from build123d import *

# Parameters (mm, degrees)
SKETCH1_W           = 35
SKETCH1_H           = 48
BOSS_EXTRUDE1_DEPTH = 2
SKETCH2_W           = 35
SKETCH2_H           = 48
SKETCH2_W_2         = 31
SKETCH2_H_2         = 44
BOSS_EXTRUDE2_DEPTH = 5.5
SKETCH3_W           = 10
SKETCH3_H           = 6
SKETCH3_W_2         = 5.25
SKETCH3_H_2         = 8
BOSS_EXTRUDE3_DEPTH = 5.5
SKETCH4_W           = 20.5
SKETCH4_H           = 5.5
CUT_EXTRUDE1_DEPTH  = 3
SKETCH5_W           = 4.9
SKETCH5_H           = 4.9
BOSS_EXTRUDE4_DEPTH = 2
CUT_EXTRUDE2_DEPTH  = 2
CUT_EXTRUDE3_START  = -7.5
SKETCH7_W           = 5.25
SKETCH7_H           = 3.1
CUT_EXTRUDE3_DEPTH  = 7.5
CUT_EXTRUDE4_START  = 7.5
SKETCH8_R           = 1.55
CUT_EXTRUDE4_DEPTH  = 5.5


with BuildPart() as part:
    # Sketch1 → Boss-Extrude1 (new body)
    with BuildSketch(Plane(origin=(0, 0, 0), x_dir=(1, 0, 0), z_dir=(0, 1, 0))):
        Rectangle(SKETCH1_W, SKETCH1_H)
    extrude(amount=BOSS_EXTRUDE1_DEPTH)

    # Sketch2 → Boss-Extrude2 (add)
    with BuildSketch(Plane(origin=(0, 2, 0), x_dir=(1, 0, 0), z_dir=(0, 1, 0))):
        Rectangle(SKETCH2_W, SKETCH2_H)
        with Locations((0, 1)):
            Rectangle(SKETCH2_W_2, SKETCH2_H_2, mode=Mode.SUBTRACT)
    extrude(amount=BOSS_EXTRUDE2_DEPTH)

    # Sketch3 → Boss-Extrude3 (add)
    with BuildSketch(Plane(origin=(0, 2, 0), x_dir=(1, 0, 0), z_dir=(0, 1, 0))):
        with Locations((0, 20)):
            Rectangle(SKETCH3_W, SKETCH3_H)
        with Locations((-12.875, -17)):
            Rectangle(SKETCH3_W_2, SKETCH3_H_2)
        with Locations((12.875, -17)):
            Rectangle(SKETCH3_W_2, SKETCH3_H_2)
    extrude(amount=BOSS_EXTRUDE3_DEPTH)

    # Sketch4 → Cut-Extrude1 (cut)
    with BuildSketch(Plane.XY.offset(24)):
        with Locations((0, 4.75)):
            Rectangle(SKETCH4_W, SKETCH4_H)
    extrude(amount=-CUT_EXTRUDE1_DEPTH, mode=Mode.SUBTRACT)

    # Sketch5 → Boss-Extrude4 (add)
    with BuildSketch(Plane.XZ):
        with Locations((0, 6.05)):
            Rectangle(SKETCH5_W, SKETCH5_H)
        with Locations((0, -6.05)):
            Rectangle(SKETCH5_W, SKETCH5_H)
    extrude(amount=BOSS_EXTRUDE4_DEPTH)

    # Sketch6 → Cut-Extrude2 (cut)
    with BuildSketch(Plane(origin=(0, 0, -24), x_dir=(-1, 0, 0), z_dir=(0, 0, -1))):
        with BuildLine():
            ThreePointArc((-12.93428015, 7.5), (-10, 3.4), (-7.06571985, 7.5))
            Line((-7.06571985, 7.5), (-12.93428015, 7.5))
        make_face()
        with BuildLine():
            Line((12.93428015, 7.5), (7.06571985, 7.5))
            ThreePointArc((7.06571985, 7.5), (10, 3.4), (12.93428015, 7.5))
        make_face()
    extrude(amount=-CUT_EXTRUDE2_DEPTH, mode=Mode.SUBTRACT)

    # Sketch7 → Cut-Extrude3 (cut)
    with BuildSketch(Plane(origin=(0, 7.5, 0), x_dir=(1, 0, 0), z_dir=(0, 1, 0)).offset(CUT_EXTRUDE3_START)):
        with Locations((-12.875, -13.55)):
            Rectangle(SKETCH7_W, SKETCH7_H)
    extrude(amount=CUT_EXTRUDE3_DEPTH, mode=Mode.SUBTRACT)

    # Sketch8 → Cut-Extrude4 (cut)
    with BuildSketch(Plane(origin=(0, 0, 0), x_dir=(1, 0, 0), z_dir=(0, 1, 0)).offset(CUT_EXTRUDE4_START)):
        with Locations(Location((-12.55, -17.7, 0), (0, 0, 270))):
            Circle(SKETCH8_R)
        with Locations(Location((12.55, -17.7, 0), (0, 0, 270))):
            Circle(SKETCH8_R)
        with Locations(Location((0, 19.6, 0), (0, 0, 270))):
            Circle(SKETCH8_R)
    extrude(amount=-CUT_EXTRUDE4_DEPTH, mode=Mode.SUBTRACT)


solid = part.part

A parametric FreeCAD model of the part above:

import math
import FreeCAD as App
import Part
import Sketcher
from FreeCAD import Vector
Q = App.Units.Quantity


def add_polygon(sketch, points):
    """Adds a closed chain of lines whose ends are joined by coincident constraints."""
    first, n = sketch.GeometryCount, len(points)
    for a, b in zip(points, points[1:] + points[:1]):
        sketch.addGeometry(Part.LineSegment(App.Vector(*a, 0), App.Vector(*b, 0)), False)
    for i in range(n):
        sketch.addConstraint(Sketcher.Constraint("Coincident", first + i, 2, first + (i + 1) % n, 1))

doc = App.newDocument("Part")
body = doc.addObject("PartDesign::Body", "Body")

# Sketch on XZ plane
sketch1 = doc.addObject("Sketcher::SketchObject", "Sketch")
body.addObject(sketch1)
sketch1.AttachmentSupport = (doc.XZ_Plane, [""])
sketch1.MapMode = "FlatFace"
add_polygon(sketch1, [(-18, -24), (-18, 24), (18, 24), (18, -24)])  # lines 0-3
sketch1.addConstraint(Sketcher.Constraint("Vertical", 0))
sketch1.addConstraint(Sketcher.Constraint("Horizontal", 1))
sketch1.addConstraint(Sketcher.Constraint("Vertical", 2))
sketch1.addConstraint(Sketcher.Constraint("Horizontal", 3))
sketch1.addConstraint(Sketcher.Constraint("Symmetric", 0, 2, 2, 2, -1, 1))
sketch1.addConstraint(Sketcher.Constraint("DistanceX", 1, 1, 1, 2, Q("35 mm")))
sketch1.addConstraint(Sketcher.Constraint("DistanceY", 0, 1, 0, 2, Q("48 mm")))
pad1 = doc.addObject("PartDesign::Pad", "Pad")
body.addObject(pad1)
pad1.Profile = sketch1
pad1.Length = 2
pad1.Reversed = True

# Sketch on XZ plane
sketch2 = doc.addObject("Sketcher::SketchObject", "Sketch001")
body.addObject(sketch2)
sketch2.AttachmentSupport = (doc.XZ_Plane, [""])
sketch2.MapMode = "FlatFace"
sketch2.AttachmentOffset = App.Placement(Vector(0, 0, -2), App.Rotation())
add_polygon(sketch2, [(-18, -24), (-18, 24), (18, 24), (18, -24)])  # lines 0-3
add_polygon(sketch2, [(16, 21), (-16, 21), (-16, -23), (16, -23)])  # lines 4-7
sketch2.addConstraint(Sketcher.Constraint("Vertical", 0))
sketch2.addConstraint(Sketcher.Constraint("Horizontal", 1))
sketch2.addConstraint(Sketcher.Constraint("Vertical", 2))
sketch2.addConstraint(Sketcher.Constraint("Horizontal", 3))
sketch2.addConstraint(Sketcher.Constraint("Horizontal", 4))
sketch2.addConstraint(Sketcher.Constraint("Vertical", 5))
sketch2.addConstraint(Sketcher.Constraint("Horizontal", 6))
sketch2.addConstraint(Sketcher.Constraint("Vertical", 7))
sketch2.addConstraint(Sketcher.Constraint("Symmetric", 0, 2, 2, 2, -1, 1))
sketch2.addConstraint(Sketcher.Constraint("DistanceX", 1, 1, 1, 2, Q("35 mm")))
sketch2.addConstraint(Sketcher.Constraint("DistanceX", 4, 2, 4, 1, Q("31 mm")))
sketch2.addConstraint(Sketcher.Constraint("DistanceY", 0, 1, 0, 2, Q("48 mm")))
sketch2.addConstraint(Sketcher.Constraint("DistanceY", 5, 2, 5, 1, Q("44 mm")))
sketch2.addConstraint(Sketcher.Constraint("DistanceY", -1, 1, 4, 2, Q("21 mm")))
sketch2.addConstraint(Sketcher.Constraint("DistanceX", 0, 2, 4, 2, Q("2 mm")))
pad2 = doc.addObject("PartDesign::Pad", "Pad001")
body.addObject(pad2)
pad2.Profile = sketch2
pad2.Length = 5.5
pad2.Reversed = True

# Sketch on XZ plane
sketch3 = doc.addObject("Sketcher::SketchObject", "Sketch002")
body.addObject(sketch3)
sketch3.AttachmentSupport = (doc.XZ_Plane, [""])
sketch3.MapMode = "FlatFace"
sketch3.AttachmentOffset = App.Placement(Vector(0, 0, -2), App.Rotation())
add_polygon(sketch3, [(-5, -23), (-5, -17), (5, -17), (5, -23)])  # lines 0-3
add_polygon(sketch3, [(-16, 13), (-16, 21), (-10, 21), (-10, 13)])  # lines 4-7
add_polygon(sketch3, [(10, 13), (10, 21), (16, 21), (16, 13)])  # lines 8-11
sketch3.addConstraint(Sketcher.Constraint("Vertical", 0))
sketch3.addConstraint(Sketcher.Constraint("Horizontal", 1))
sketch3.addConstraint(Sketcher.Constraint("Vertical", 2))
sketch3.addConstraint(Sketcher.Constraint("Horizontal", 3))
sketch3.addConstraint(Sketcher.Constraint("Vertical", 4))
sketch3.addConstraint(Sketcher.Constraint("Horizontal", 5))
sketch3.addConstraint(Sketcher.Constraint("Vertical", 6))
sketch3.addConstraint(Sketcher.Constraint("Horizontal", 7))
sketch3.addConstraint(Sketcher.Constraint("Vertical", 8))
sketch3.addConstraint(Sketcher.Constraint("Horizontal", 9))
sketch3.addConstraint(Sketcher.Constraint("Vertical", 10))
sketch3.addConstraint(Sketcher.Constraint("Horizontal", 11))
sketch3.addConstraint(Sketcher.Constraint("Symmetric", 5, 2, 8, 2, -2))
sketch3.addConstraint(Sketcher.Constraint("Symmetric", 7, 2, 10, 2, -2))
sketch3.addConstraint(Sketcher.Constraint("DistanceX", 1, 1, 1, 2, Q("10 mm")))
sketch3.addConstraint(Sketcher.Constraint("DistanceY", 0, 1, 0, 2, Q("6 mm")))
sketch3.addConstraint(Sketcher.Constraint("DistanceY", 4, 1, 4, 2, Q("8 mm")))
sketch3.addConstraint(Sketcher.Constraint("DistanceX", 0, 2, -1, 1, Q("5 mm")))
sketch3.addConstraint(Sketcher.Constraint("DistanceY", 0, 2, -1, 1, Q("17 mm")))
sketch3.addConstraint(Sketcher.Constraint("DistanceY", -1, 1, 4, 2, Q("21 mm")))
sketch3.addConstraint(Sketcher.Constraint("DistanceX", 4, 2, 9, 2, Q("31 mm")))
sketch3.addConstraint(Sketcher.Constraint("DistanceX", 5, 1, 5, 2, Q("5.25 mm")))
pad3 = doc.addObject("PartDesign::Pad", "Pad002")
body.addObject(pad3)
pad3.Profile = sketch3
pad3.Length = 5.5
pad3.Reversed = True

# Sketch on XY plane
sketch4 = doc.addObject("Sketcher::SketchObject", "Sketch003")
body.addObject(sketch4)
sketch4.AttachmentSupport = (doc.XY_Plane, [""])
sketch4.MapMode = "FlatFace"
sketch4.AttachmentOffset = App.Placement(Vector(0, 0, 24), App.Rotation())
add_polygon(sketch4, [(-10, 8), (-10, 2), (10, 2), (10, 8)])  # lines 0-3
sketch4.addConstraint(Sketcher.Constraint("Vertical", 0))
sketch4.addConstraint(Sketcher.Constraint("Horizontal", 1))
sketch4.addConstraint(Sketcher.Constraint("Vertical", 2))
sketch4.addConstraint(Sketcher.Constraint("Horizontal", 3))
sketch4.addConstraint(Sketcher.Constraint("DistanceX", 1, 1, 1, 2, Q("20.5 mm")))
sketch4.addConstraint(Sketcher.Constraint("DistanceY", 0, 2, 0, 1, Q("5.5 mm")))
sketch4.addConstraint(Sketcher.Constraint("DistanceY", -1, 1, 0, 2, Q("2 mm")))
sketch4.addConstraint(Sketcher.Constraint("DistanceX", 0, 2, -1, 1, Q("10.25 mm")))
pocket1 = doc.addObject("PartDesign::Pocket", "Pocket")
body.addObject(pocket1)
pocket1.Profile = sketch4
pocket1.Length = 3

# Sketch on XZ plane
sketch5 = doc.addObject("Sketcher::SketchObject", "Sketch004")
body.addObject(sketch5)
sketch5.AttachmentSupport = (doc.XZ_Plane, [""])
sketch5.MapMode = "FlatFace"
add_polygon(sketch5, [(-2.5, 8.5), (-2.5, 3.6), (2.5, 3.6), (2.5, 8.5)])  # lines 0-3
add_polygon(sketch5, [(-2.5, -3.6), (-2.5, -8.5), (2.5, -8.5), (2.5, -3.6)])  # lines 4-7
sketch5.addConstraint(Sketcher.Constraint("Vertical", 0))
sketch5.addConstraint(Sketcher.Constraint("Horizontal", 1))
sketch5.addConstraint(Sketcher.Constraint("Vertical", 2))
sketch5.addConstraint(Sketcher.Constraint("Horizontal", 3))
sketch5.addConstraint(Sketcher.Constraint("Vertical", 4))
sketch5.addConstraint(Sketcher.Constraint("Horizontal", 5))
sketch5.addConstraint(Sketcher.Constraint("Vertical", 6))
sketch5.addConstraint(Sketcher.Constraint("Horizontal", 7))
sketch5.addConstraint(Sketcher.Constraint("Symmetric", 2, 2, 4, 2, -1, 1))
sketch5.addConstraint(Sketcher.Constraint("Symmetric", 0, 2, 6, 2, -1, 1))
sketch5.addConstraint(Sketcher.Constraint("Vertical", 3, 2, 4, 2))
sketch5.addConstraint(Sketcher.Constraint("Equal", 7, 0))
sketch5.addConstraint(Sketcher.Constraint("DistanceX", 1, 1, 1, 2, Q("4.9 mm")))
sketch5.addConstraint(Sketcher.Constraint("DistanceY", 4, 2, 3, 2, Q("17 mm")))
pad4 = doc.addObject("PartDesign::Pad", "Pad003")
body.addObject(pad4)
pad4.Profile = sketch5
pad4.Length = 2

# Sketch on XY plane
sketch6 = doc.addObject("Sketcher::SketchObject", "Sketch005")
body.addObject(sketch6)
sketch6.AttachmentSupport = (doc.XY_Plane, [""])
sketch6.MapMode = "FlatFace"
sketch6.AttachmentOffset = App.Placement(Vector(0, 0, -24), App.Rotation())
sketch6.addGeometry(Part.ArcOfCircle(Part.Circle(Vector(10, 6.5, 0), Vector(0, 0, 1), 3.1), math.radians(161), math.radians(379)), False)
sketch6.addGeometry(Part.LineSegment(Vector(7.1, 7.5, 0), Vector(12.9, 7.5, 0)), False)
sketch6.addGeometry(Part.LineSegment(Vector(-12.9, 7.5, 0), Vector(-7.1, 7.5, 0)), False)
sketch6.addGeometry(Part.ArcOfCircle(Part.Circle(Vector(-10, 6.5, 0), Vector(0, 0, 1), 3.1), math.radians(161), math.radians(379)), False)
sketch6.addConstraint(Sketcher.Constraint("Coincident", 0, 1, 1, 1))
sketch6.addConstraint(Sketcher.Constraint("Coincident", 1, 2, 0, 2))
sketch6.addConstraint(Sketcher.Constraint("Coincident", 2, 1, 3, 1))
sketch6.addConstraint(Sketcher.Constraint("Coincident", 3, 2, 2, 2))
sketch6.addConstraint(Sketcher.Constraint("Horizontal", 1))
sketch6.addConstraint(Sketcher.Constraint("Horizontal", 2))
sketch6.addConstraint(Sketcher.Constraint("Equal", 0, 3))
sketch6.addConstraint(Sketcher.Constraint("Symmetric", 0, 3, 3, 3, -2))
sketch6.addConstraint(Sketcher.Constraint("Horizontal", 1, 2, 2, 1))
sketch6.addConstraint(Sketcher.Constraint("Radius", 0, Q("3.1 mm")))
sketch6.addConstraint(Sketcher.Constraint("DistanceX", -1, 1, 0, 3, Q("10 mm")))
sketch6.addConstraint(Sketcher.Constraint("DistanceY", 0, 3, 0, 1, Q("1 mm")))
sketch6.addConstraint(Sketcher.Constraint("DistanceY", -1, 1, 0, 3, Q("6.5 mm")))
pocket2 = doc.addObject("PartDesign::Pocket", "Pocket001")
body.addObject(pocket2)
pocket2.Profile = sketch6
pocket2.Length = 2
pocket2.Reversed = True

# Sketch on XZ plane
sketch7 = doc.addObject("Sketcher::SketchObject", "Sketch006")
body.addObject(sketch7)
sketch7.AttachmentSupport = (doc.XZ_Plane, [""])
sketch7.MapMode = "FlatFace"
add_polygon(sketch7, [(-15.5, 12), (-15.5, 15.1), (-10.2, 15.1), (-10.2, 12)])  # lines 0-3
sketch7.addConstraint(Sketcher.Constraint("Vertical", 0))
sketch7.addConstraint(Sketcher.Constraint("Horizontal", 1))
sketch7.addConstraint(Sketcher.Constraint("Vertical", 2))
sketch7.addConstraint(Sketcher.Constraint("Horizontal", 3))
sketch7.addConstraint(Sketcher.Constraint("DistanceY", 0, 1, 0, 2, Q("3.1 mm")))
sketch7.addConstraint(Sketcher.Constraint("DistanceY", -1, 1, 2, 2, Q("12 mm")))
sketch7.addConstraint(Sketcher.Constraint("DistanceX", 1, 1, 1, 2, Q("5.25 mm")))
sketch7.addConstraint(Sketcher.Constraint("DistanceX", 0, 2, -1, 1, Q("15.5 mm")))
pocket3 = doc.addObject("PartDesign::Pocket", "Pocket002")
body.addObject(pocket3)
pocket3.Profile = sketch7
pocket3.Length = 7.5

# Sketch on XZ plane
sketch8 = doc.addObject("Sketcher::SketchObject", "Sketch007")
body.addObject(sketch8)
sketch8.AttachmentSupport = (doc.XZ_Plane, [""])
sketch8.MapMode = "FlatFace"
sketch8.AttachmentOffset = App.Placement(Vector(0, 0, -7.5), App.Rotation())
sketch8.addGeometry(Part.Circle(Vector(-12.6, 17.7, 0), Vector(0, 0, 1), 1.6), False)
sketch8.addGeometry(Part.Circle(Vector(12.6, 17.7, 0), Vector(0, 0, 1), 1.6), False)
sketch8.addGeometry(Part.Circle(Vector(0, -19.6, 0), Vector(0, 0, 1), 1.6), False)
sketch8.addConstraint(Sketcher.Constraint("Equal", 0, 1))
sketch8.addConstraint(Sketcher.Constraint("Equal", 1, 2))
sketch8.addConstraint(Sketcher.Constraint("Symmetric", 0, 3, 1, 3, -2))
sketch8.addConstraint(Sketcher.Constraint("PointOnObject", 2, 3, -2))
sketch8.addConstraint(Sketcher.Constraint("Diameter", 0, Q("3.1 mm")))
sketch8.addConstraint(Sketcher.Constraint("DistanceY", -1, 1, 0, 3, Q("17.7 mm")))
sketch8.addConstraint(Sketcher.Constraint("DistanceY", 2, 3, -1, 1, Q("19.6 mm")))
sketch8.addConstraint(Sketcher.Constraint("DistanceX", 0, 3, 1, 3, Q("25.1 mm")))
pocket4 = doc.addObject("PartDesign::Pocket", "Pocket003")
body.addObject(pocket4)
pocket4.Profile = sketch8
pocket4.Length = 5.5
pocket4.Reversed = True

doc.recompute()
